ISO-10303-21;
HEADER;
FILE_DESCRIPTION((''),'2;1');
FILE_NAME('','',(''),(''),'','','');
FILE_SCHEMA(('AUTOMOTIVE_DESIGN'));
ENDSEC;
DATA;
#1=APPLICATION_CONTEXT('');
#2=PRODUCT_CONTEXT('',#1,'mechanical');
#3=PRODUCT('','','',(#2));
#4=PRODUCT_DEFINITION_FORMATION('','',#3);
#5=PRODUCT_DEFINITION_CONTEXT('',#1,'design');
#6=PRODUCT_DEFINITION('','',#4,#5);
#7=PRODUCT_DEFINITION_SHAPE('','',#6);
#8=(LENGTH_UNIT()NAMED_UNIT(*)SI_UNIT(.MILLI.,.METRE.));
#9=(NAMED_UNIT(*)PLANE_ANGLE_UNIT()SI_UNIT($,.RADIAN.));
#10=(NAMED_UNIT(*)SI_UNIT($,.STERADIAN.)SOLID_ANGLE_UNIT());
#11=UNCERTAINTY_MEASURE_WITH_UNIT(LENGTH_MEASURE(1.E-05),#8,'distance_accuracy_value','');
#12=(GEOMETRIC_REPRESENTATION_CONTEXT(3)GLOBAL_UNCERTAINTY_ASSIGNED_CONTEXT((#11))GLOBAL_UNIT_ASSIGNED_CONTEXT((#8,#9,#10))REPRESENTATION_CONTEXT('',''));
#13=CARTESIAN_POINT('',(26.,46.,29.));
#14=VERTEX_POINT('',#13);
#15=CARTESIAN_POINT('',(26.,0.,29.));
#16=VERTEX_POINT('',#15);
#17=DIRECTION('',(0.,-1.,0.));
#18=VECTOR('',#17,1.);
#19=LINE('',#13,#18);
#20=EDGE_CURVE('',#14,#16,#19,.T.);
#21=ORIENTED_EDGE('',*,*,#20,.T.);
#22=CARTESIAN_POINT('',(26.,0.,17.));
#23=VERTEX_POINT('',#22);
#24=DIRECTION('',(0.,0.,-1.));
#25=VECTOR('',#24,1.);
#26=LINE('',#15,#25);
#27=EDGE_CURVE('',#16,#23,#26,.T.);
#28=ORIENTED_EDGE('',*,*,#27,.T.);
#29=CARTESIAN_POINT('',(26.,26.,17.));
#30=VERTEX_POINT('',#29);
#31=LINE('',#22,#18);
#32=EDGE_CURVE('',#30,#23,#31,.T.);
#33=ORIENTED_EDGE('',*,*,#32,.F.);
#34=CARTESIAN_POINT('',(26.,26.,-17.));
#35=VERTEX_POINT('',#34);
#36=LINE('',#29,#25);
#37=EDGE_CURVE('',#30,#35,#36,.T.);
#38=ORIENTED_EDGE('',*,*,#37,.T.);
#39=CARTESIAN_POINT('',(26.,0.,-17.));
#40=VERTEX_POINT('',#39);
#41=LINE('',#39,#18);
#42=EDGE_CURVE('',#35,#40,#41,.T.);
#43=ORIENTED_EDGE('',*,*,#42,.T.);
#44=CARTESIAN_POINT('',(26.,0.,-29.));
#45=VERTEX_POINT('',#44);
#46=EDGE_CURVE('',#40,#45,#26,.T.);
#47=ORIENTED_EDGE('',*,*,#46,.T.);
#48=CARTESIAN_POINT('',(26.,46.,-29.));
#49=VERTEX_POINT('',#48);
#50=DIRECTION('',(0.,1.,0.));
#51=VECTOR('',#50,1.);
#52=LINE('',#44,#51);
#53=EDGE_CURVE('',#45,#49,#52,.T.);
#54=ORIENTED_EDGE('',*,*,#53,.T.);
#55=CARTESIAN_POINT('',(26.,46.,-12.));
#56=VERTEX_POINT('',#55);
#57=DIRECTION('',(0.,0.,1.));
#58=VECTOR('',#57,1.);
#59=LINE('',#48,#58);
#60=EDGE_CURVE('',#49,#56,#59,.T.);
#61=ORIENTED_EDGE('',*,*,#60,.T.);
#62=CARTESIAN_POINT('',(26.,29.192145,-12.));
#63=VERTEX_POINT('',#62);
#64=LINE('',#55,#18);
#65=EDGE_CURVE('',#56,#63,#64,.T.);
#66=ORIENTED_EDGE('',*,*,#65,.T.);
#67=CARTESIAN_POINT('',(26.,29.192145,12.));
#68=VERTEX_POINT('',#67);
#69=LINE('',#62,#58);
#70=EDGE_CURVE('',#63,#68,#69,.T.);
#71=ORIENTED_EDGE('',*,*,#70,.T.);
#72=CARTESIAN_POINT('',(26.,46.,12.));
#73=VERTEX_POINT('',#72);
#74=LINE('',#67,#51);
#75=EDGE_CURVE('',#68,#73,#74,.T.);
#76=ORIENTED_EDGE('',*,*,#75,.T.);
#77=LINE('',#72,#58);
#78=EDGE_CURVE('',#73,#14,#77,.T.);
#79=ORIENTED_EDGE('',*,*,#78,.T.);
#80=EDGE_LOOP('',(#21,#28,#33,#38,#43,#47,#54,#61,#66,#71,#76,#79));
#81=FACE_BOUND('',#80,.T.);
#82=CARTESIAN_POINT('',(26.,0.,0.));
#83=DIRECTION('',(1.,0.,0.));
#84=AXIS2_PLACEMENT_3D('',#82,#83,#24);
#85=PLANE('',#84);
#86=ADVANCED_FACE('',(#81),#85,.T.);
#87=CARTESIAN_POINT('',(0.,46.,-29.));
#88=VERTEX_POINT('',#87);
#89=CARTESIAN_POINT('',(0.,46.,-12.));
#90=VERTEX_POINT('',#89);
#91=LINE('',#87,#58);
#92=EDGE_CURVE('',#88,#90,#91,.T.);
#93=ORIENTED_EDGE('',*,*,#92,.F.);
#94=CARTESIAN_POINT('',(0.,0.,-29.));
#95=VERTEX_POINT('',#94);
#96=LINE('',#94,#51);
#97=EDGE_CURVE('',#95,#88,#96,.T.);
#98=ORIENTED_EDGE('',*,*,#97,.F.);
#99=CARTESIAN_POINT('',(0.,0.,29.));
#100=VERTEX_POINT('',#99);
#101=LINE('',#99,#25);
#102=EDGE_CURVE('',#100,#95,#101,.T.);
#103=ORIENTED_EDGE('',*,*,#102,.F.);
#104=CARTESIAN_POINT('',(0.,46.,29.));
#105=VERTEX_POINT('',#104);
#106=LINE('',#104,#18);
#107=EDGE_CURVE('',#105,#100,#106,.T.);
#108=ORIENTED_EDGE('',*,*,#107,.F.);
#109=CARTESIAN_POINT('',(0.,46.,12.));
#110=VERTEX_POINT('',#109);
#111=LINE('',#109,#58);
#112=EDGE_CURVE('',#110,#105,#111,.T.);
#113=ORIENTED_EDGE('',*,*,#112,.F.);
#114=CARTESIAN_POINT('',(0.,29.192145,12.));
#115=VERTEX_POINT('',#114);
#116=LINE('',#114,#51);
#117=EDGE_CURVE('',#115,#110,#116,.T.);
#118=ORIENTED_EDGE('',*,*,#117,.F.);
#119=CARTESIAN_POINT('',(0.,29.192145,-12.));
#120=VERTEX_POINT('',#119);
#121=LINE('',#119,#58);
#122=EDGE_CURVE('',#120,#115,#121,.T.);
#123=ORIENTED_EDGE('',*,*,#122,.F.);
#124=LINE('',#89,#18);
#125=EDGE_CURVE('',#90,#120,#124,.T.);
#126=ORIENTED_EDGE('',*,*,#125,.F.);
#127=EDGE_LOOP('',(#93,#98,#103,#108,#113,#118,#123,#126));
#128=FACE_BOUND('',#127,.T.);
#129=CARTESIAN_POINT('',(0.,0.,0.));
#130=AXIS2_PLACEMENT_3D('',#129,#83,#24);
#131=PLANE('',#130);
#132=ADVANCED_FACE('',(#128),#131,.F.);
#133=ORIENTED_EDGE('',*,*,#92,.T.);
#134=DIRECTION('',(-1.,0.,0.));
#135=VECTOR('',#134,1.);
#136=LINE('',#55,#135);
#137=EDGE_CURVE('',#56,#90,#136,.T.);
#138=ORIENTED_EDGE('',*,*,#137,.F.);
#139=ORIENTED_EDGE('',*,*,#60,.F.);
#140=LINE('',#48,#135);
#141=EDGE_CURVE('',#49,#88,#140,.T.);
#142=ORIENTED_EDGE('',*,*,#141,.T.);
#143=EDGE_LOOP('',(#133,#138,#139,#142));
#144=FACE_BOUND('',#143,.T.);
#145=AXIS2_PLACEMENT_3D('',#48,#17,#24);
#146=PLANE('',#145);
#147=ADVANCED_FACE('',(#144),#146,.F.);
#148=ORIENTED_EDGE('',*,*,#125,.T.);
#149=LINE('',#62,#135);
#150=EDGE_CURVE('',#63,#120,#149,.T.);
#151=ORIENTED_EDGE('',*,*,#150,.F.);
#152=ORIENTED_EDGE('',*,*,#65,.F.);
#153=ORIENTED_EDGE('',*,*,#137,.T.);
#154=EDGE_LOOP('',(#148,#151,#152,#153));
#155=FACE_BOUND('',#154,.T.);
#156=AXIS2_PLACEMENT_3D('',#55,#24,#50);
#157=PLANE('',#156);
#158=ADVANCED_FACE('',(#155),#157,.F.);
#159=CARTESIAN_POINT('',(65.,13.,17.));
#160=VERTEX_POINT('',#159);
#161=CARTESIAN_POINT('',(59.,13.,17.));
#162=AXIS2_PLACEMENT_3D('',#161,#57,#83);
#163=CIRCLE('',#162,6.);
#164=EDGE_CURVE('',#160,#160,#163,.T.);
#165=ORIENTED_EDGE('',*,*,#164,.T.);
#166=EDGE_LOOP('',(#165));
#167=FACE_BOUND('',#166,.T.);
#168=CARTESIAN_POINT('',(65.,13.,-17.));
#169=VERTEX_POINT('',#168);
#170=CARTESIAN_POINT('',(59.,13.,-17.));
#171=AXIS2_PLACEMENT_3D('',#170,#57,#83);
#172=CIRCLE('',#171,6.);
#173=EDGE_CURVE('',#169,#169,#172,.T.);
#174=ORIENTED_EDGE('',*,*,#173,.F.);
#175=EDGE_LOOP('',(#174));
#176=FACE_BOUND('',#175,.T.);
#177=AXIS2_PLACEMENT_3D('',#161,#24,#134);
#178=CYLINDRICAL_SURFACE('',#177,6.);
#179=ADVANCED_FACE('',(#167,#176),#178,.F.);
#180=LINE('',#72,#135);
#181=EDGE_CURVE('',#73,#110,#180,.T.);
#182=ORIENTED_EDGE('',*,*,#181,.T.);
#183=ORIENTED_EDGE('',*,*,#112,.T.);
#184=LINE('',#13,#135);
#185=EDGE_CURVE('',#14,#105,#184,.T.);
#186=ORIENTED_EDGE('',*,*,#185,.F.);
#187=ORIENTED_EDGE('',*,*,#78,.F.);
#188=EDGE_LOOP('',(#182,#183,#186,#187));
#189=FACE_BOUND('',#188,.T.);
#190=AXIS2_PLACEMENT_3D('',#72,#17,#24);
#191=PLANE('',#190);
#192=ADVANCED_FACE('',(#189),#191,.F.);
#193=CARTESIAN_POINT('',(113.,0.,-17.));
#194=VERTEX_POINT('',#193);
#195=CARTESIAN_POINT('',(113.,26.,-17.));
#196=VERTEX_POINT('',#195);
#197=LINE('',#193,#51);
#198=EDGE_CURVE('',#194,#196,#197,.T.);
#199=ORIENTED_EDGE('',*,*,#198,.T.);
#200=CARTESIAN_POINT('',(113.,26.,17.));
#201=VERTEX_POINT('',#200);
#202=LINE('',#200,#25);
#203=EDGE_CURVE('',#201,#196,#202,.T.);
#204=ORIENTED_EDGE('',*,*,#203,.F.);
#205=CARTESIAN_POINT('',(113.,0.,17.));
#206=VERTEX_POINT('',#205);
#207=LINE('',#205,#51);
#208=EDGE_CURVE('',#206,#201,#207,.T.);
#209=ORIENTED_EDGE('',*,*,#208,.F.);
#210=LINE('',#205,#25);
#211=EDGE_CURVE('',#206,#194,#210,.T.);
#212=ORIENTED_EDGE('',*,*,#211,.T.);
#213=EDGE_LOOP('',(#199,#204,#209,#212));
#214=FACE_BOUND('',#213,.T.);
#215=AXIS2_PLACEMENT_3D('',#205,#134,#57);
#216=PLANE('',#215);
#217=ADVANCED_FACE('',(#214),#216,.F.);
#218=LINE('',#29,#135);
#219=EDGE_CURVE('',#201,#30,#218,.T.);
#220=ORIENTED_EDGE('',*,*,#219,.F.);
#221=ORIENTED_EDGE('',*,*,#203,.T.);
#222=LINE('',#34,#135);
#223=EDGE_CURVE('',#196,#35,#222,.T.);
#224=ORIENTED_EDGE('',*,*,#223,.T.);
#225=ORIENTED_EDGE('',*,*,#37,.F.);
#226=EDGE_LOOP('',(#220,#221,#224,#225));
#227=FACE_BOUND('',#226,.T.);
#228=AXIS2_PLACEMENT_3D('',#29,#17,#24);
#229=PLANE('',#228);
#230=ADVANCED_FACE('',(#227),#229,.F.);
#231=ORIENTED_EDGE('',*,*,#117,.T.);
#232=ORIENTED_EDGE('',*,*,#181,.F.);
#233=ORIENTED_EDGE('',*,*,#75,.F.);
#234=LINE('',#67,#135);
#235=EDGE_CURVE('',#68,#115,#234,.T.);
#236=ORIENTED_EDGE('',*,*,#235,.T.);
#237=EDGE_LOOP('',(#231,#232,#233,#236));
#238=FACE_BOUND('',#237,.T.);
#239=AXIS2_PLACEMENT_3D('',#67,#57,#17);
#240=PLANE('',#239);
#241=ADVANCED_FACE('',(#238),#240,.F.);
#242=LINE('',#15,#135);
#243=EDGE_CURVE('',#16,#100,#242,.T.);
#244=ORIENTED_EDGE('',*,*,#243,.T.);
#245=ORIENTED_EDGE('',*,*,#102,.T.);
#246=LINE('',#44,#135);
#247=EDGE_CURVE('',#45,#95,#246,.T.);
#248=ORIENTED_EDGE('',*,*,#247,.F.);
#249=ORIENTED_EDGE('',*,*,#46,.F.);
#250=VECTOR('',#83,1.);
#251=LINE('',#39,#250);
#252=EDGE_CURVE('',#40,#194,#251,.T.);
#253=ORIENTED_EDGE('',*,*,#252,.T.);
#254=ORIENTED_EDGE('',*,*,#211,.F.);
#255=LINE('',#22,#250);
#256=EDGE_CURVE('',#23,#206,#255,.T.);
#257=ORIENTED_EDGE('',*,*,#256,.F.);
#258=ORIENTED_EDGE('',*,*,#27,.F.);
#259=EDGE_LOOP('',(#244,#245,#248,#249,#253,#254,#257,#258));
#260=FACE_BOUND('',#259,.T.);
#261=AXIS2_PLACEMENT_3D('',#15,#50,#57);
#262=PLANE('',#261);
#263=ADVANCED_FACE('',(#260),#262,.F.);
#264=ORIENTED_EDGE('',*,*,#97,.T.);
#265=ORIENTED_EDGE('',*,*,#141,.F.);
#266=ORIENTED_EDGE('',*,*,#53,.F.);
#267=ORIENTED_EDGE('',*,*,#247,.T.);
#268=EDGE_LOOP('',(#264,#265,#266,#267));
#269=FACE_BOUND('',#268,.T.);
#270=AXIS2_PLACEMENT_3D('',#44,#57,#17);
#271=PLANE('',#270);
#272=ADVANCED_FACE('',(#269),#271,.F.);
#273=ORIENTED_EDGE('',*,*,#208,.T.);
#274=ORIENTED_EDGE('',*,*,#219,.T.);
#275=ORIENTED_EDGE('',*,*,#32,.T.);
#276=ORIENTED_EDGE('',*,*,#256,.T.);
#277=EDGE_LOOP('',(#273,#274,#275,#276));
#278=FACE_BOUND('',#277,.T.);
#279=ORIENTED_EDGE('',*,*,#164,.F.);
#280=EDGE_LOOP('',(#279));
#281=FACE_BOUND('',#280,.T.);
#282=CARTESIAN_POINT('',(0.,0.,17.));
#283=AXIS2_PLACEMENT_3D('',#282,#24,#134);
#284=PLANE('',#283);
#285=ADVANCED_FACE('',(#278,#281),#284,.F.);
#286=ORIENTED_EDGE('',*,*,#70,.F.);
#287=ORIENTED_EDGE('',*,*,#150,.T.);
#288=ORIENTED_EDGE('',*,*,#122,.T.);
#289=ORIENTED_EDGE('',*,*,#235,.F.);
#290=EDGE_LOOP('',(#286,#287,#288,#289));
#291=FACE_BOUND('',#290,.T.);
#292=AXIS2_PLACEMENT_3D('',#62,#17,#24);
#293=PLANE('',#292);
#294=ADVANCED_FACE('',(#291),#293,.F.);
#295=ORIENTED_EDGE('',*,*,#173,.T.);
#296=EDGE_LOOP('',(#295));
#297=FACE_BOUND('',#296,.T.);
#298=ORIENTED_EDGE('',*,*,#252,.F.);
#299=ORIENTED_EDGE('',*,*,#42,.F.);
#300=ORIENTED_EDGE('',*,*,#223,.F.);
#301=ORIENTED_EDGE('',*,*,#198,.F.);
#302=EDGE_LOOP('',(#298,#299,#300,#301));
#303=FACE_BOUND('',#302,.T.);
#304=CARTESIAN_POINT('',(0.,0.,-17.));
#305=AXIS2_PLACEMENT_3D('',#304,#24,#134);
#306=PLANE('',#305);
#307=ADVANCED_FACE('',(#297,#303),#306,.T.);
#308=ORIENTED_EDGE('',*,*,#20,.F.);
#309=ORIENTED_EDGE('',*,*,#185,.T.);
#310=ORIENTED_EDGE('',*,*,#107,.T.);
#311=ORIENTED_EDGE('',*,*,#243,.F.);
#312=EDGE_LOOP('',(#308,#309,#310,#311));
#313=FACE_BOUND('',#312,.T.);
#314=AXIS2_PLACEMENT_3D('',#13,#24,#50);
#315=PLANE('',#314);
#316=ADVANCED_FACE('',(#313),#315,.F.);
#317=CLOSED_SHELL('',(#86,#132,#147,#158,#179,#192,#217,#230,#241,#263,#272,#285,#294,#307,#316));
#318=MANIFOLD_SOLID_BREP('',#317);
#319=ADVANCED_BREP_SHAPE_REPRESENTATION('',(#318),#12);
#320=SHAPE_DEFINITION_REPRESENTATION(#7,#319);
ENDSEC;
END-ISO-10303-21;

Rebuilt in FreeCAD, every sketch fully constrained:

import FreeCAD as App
import Part
import Sketcher

V = App.Vector

doc = App.newDocument("Part")
params = doc.addObject("Spreadsheet::Sheet", "Params")
for row, (alias, value) in enumerate([
    ("sketch1_width", "46 mm"),
    ("sketch1_height", "58 mm"),
    ("sketch1_height2", "17 mm"),
    ("pad1_length", "26 mm"),
    ("sketch2_diameter", "12 mm"),
    ("sketch2_width", "87 mm"),
    ("sketch2_height", "26 mm"),
    ("pad2_length", "34 mm"),
], start=1):
    params.set(f"A{row}", alias)
    params.set(f"B{row}", "=" + value)
    params.setAlias(f"B{row}", alias)

body = doc.addObject("PartDesign::Body", "Body")

# Sketch on YZ plane
sketch1 = doc.addObject("Sketcher::SketchObject", "Sketch")
body.addObject(sketch1)
sketch1.AttachmentSupport = (doc.YZ_Plane, [""])
sketch1.MapMode = "FlatFace"
sketch1.addGeometry([
    Part.LineSegment(V(0, 29, 0), V(0, -29, 0)),  # 0
    Part.LineSegment(V(0, -29, 0), V(46, -29, 0)),  # 1
    Part.LineSegment(V(46, -29, 0), V(46, -12, 0)),  # 2
    Part.LineSegment(V(46, -12, 0), V(29.192145, -12, 0)),  # 3
    Part.LineSegment(V(29.192145, -12, 0), V(29.192145, 12, 0)),  # 4
    Part.LineSegment(V(29.192145, 12, 0), V(46, 12, 0)),  # 5
    Part.LineSegment(V(46, 12, 0), V(46, 29, 0)),  # 6
    Part.LineSegment(V(46, 29, 0), V(0, 29, 0)),  # 7
], False)
sketch1.addConstraint([
    Sketcher.Constraint("Coincident", 0, 2, 1, 1),
    Sketcher.Constraint("Coincident", 1, 2, 2, 1),
    Sketcher.Constraint("Coincident", 2, 2, 3, 1),
    Sketcher.Constraint("Coincident", 3, 2, 4, 1),
    Sketcher.Constraint("Coincident", 4, 2, 5, 1),
    Sketcher.Constraint("Coincident", 5, 2, 6, 1),
    Sketcher.Constraint("Coincident", 6, 2, 7, 1),
    Sketcher.Constraint("Coincident", 7, 2, 0, 1),
    Sketcher.Constraint("Vertical", 0),
    Sketcher.Constraint("Horizontal", 1),
    Sketcher.Constraint("Vertical", 2),
    Sketcher.Constraint("Horizontal", 3),
    Sketcher.Constraint("Vertical", 4),
    Sketcher.Constraint("Horizontal", 5),
    Sketcher.Constraint("Vertical", 6),
    Sketcher.Constraint("Horizontal", 7),
    Sketcher.Constraint("Symmetric", 0, 2, 7, 2, -1, 1),
    Sketcher.Constraint("Symmetric", 2, 2, 5, 2, -1),
    Sketcher.Constraint("DistanceX", 1, 1, 1, 2, 46.0),
    Sketcher.Constraint("DistanceY", 0, 2, 0, 1, 58.0),
    Sketcher.Constraint("DistanceY", 2, 1, 2, 2, 17.0),
    Sketcher.Constraint("DistanceX", 3, 2, 3, 1, 16.807855),
])
sketch1.setExpression("Constraints[18]", "Params.sketch1_width")
sketch1.setExpression("Constraints[19]", "Params.sketch1_height")
sketch1.setExpression("Constraints[20]", "Params.sketch1_height2")
pad1 = doc.addObject("PartDesign::Pad", "Pad")
body.addObject(pad1)
pad1.Profile = sketch1
pad1.setExpression("Length", "Params.pad1_length")

# Sketch on XY plane
sketch2 = doc.addObject("Sketcher::SketchObject", "Sketch001")
body.addObject(sketch2)
sketch2.AttachmentSupport = (doc.XY_Plane, [""])
sketch2.MapMode = "FlatFace"
sketch2.addGeometry([
    Part.LineSegment(V(26, 26, 0), V(26, 0, 0)),  # 0
    Part.LineSegment(V(26, 0, 0), V(113, 0, 0)),  # 1
    Part.LineSegment(V(113, 0, 0), V(113, 26, 0)),  # 2
    Part.LineSegment(V(113, 26, 0), V(26, 26, 0)),  # 3
    Part.Circle(V(59, 13, 0), V(0, 0, 1), 6),  # 4
], False)
sketch2.addConstraint([
    Sketcher.Constraint("Coincident", 0, 2, 1, 1),
    Sketcher.Constraint("Coincident", 1, 2, 2, 1),
    Sketcher.Constraint("Coincident", 2, 2, 3, 1),
    Sketcher.Constraint("Coincident", 3, 2, 0, 1),
    Sketcher.Constraint("Vertical", 0),
    Sketcher.Constraint("Horizontal", 1),
    Sketcher.Constraint("Vertical", 2),
    Sketcher.Constraint("Horizontal", 3),
    Sketcher.Constraint("PointOnObject", 0, 2, -1),
    Sketcher.Constraint("Diameter", 4, 12.0),
    Sketcher.Constraint("DistanceX", 1, 1, 1, 2, 87.0),
    Sketcher.Constraint("DistanceY", 0, 2, 0, 1, 26.0),
    Sketcher.Constraint("DistanceX", -1, 1, 4, 3, 59.0),
    Sketcher.Constraint("DistanceY", -1, 1, 4, 3, 13.0),
    Sketcher.Constraint("DistanceX", -1, 1, 0, 2, 26.0),
])
sketch2.setExpression("Constraints[9]", "Params.sketch2_diameter")
sketch2.setExpression("Constraints[10]", "Params.sketch2_width")
sketch2.setExpression("Constraints[11]", "Params.sketch2_height")
pad2 = doc.addObject("PartDesign::Pad", "Pad001")
body.addObject(pad2)
pad2.Profile = sketch2
pad2.setExpression("Length", "Params.pad2_length")
pad2.Midplane = True

doc.recompute()
